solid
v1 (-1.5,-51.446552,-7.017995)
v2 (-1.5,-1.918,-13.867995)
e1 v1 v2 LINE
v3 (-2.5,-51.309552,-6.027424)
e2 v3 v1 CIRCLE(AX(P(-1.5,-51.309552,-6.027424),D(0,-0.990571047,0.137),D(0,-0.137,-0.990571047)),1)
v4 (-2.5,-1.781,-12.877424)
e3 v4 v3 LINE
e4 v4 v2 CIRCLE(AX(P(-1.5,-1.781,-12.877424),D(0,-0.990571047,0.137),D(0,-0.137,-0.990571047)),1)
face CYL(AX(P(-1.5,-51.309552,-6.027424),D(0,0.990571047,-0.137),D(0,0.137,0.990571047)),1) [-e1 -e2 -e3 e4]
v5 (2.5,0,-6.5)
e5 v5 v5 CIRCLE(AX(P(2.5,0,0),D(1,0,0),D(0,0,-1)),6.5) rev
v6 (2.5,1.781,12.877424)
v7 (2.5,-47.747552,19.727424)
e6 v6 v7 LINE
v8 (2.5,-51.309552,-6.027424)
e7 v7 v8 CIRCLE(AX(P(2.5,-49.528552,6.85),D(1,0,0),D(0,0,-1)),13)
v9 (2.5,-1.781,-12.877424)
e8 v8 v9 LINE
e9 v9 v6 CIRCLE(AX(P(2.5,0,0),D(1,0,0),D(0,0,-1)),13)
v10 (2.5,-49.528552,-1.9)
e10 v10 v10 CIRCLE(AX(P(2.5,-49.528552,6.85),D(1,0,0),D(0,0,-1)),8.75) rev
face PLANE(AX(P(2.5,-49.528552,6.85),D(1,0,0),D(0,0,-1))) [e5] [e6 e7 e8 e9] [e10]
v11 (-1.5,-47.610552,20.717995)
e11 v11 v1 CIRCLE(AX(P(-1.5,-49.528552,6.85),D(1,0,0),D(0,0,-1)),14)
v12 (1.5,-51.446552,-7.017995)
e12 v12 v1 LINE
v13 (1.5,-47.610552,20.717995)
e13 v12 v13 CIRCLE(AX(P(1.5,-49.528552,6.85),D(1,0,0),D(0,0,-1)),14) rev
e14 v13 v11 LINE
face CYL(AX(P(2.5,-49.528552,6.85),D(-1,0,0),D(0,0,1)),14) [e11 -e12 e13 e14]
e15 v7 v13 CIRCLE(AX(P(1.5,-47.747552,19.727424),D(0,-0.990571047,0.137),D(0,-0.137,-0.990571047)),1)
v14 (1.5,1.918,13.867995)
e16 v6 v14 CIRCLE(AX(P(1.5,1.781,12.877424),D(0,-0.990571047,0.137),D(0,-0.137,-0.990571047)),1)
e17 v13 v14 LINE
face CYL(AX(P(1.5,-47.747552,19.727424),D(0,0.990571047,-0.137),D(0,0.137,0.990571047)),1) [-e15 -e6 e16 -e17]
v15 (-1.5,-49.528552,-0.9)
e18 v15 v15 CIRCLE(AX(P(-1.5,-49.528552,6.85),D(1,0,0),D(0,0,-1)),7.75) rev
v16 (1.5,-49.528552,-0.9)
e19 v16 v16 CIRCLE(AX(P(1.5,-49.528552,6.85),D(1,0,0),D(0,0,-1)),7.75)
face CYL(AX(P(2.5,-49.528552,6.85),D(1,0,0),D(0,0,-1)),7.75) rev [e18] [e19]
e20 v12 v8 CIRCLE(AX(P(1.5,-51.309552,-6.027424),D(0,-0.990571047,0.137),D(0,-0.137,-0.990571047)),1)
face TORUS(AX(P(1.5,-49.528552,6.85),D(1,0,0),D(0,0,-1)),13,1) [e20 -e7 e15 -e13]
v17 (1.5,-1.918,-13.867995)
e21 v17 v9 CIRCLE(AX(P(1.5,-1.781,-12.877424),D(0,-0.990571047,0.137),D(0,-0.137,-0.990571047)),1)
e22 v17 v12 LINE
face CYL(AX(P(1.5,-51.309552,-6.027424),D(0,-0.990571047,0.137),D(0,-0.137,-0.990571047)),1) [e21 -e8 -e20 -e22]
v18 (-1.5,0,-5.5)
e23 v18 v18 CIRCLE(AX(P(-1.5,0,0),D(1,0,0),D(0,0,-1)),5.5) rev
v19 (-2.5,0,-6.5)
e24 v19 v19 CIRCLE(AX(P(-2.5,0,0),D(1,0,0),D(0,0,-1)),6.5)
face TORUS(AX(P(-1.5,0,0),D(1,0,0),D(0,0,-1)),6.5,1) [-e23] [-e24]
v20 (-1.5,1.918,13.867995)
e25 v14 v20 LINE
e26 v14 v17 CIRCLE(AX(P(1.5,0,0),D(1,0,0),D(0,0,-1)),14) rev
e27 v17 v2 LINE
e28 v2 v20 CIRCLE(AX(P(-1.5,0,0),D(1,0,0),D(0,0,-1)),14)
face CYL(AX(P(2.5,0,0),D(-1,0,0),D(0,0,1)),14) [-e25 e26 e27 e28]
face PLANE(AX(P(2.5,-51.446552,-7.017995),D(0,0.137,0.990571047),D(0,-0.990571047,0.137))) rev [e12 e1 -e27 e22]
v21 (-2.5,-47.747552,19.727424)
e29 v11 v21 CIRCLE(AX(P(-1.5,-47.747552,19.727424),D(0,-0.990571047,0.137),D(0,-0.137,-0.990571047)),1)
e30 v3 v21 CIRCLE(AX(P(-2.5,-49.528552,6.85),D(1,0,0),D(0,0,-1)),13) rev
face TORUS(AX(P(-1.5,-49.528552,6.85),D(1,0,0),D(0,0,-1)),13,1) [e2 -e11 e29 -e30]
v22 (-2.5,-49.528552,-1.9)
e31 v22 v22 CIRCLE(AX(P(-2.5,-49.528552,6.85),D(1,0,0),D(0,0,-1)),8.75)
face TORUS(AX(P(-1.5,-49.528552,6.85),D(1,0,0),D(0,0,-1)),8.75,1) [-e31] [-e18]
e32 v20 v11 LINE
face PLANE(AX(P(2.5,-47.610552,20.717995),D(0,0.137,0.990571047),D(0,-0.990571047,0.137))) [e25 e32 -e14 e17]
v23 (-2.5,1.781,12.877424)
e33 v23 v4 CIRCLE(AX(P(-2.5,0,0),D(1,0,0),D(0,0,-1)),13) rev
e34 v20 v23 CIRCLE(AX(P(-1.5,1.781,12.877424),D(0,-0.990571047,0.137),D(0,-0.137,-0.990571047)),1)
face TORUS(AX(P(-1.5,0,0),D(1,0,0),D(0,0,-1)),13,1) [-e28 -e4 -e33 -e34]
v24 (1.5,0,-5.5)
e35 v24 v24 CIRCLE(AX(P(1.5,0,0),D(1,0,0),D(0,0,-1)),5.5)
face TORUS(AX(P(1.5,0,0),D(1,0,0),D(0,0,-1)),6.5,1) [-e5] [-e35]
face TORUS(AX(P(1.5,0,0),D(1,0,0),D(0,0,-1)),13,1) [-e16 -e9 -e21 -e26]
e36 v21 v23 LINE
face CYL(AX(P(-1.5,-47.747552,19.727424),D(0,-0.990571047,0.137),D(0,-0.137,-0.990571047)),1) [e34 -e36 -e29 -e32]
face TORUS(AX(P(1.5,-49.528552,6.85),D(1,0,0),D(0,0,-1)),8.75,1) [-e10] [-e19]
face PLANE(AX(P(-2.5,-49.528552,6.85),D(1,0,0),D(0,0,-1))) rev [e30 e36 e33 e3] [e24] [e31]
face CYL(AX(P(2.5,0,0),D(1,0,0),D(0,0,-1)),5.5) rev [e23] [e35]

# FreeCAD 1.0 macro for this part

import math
import FreeCAD as App
import Part
import Sketcher
from FreeCAD import Vector


def edges_at(feature, points):
    """Names of the edges that pass closest to the given points."""
    edges = feature.Shape.Edges
    near = lambda p: min(range(len(edges)), key=lambda i: edges[i].distToShape(Part.Vertex(*p))[0])
    return sorted({f"Edge{near(p) + 1}" for p in points})

doc = App.newDocument("Part")
body = doc.addObject("PartDesign::Body", "Body")

# Sketch on YZ plane
sketch1 = doc.addObject("Sketcher::SketchObject", "Sketch")
body.addObject(sketch1)
sketch1.AttachmentSupport = (doc.YZ_Plane, [""])
sketch1.MapMode = "FlatFace"
sketch1.addGeometry([
    Part.LineSegment(Vector(1.918, 13.867995, 0), Vector(-47.610552, 20.717995, 0)),
    Part.ArcOfCircle(Part.Circle(Vector(-49.528552, 6.85, 0), Vector(0, 0, 1), 14), math.radians(82.125714), math.radians(262.125714)),
    Part.LineSegment(Vector(-51.446552, -7.017995, 0), Vector(-1.918, -13.867995, 0)),
    Part.ArcOfCircle(Part.Circle(Vector(0, 0, 0), Vector(0, 0, 1), 14), math.radians(-97.874286), math.radians(82.125714)),
], False)
sketch1.addConstraint([
    Sketcher.Constraint("Tangent", 0, 2, 1, 1),
    Sketcher.Constraint("Tangent", 1, 2, 2, 1),
    Sketcher.Constraint("Tangent", 2, 2, 3, 1),
    Sketcher.Constraint("Tangent", 3, 2, 0, 1),
    Sketcher.Constraint("Coincident", 3, 3, -1, 1),
    Sketcher.Constraint("Equal", 1, 3),
    Sketcher.Constraint("Radius", 1, 14.0),
    Sketcher.Constraint("Distance", 0, 50.0),
    Sketcher.Constraint("DistanceY", -1, 1, 1, 3, 6.85),
])
pad1 = doc.addObject("PartDesign::Pad", "Pad")
body.addObject(pad1)
pad1.Profile = sketch1
pad1.Length = 5
pad1.Midplane = True

# Sketch on YZ plane
sketch2 = doc.addObject("Sketcher::SketchObject", "Sketch001")
body.addObject(sketch2)
sketch2.AttachmentSupport = (doc.YZ_Plane, [""])
sketch2.MapMode = "FlatFace"
sketch2.AttachmentOffset = App.Placement(Vector(0, 0, 2.5), App.Rotation())
sketch2.addGeometry(Part.Circle(Vector(-49.528552, 6.85, 0), Vector(0, 0, 1), 7.75), False)
sketch2.addConstraint([
    Sketcher.Constraint("Diameter", 0, 15.5),
    Sketcher.Constraint("DistanceY", -1, 1, 0, 3, 6.85),
    Sketcher.Constraint("DistanceX", 0, 3, -1, 1, 49.528552),
])
doc.recompute()
hole = doc.addObject("PartDesign::Hole", "Hole")
body.addObject(hole)
hole.Profile = sketch2
hole.ThreadType = "None"
hole.Diameter = 15.5
hole.DepthType = "ThroughAll"

# Sketch on YZ plane
sketch3 = doc.addObject("Sketcher::SketchObject", "Sketch002")
body.addObject(sketch3)
sketch3.AttachmentSupport = (doc.YZ_Plane, [""])
sketch3.MapMode = "FlatFace"
sketch3.AttachmentOffset = App.Placement(Vector(0, 0, 2.5), App.Rotation())
sketch3.addGeometry(Part.Circle(Vector(0, 0, 0), Vector(0, 0, 1), 5.5), False)
sketch3.addConstraint([
    Sketcher.Constraint("Coincident", 0, 3, -1, 1),
    Sketcher.Constraint("Diameter", 0, 11.0),
])
doc.recompute()
hole2 = doc.addObject("PartDesign::Hole", "Hole001")
body.addObject(hole2)
hole2.Profile = sketch3
hole2.ThreadType = "None"
hole2.Diameter = 11
hole2.DepthType = "ThroughAll"
doc.recompute()

fillet = doc.addObject("PartDesign::Fillet", "Fillet")
body.addObject(fillet)
fillet.Base = (hole2, edges_at(hole2, [
    (2.5, 13.868, -1.918),
    (2.5, -22.846, 17.293),
    (2.5, -41.779, 6.85),
    (-2.5, -41.779, 6.85),
    (2.5, 5.5, 0),
    (-2.5, 5.5, 0),
    (2.5, -63.397, 8.768),
    (-2.5, -22.846, 17.293),
    (-2.5, 13.868, -1.918),
    (-2.5, -26.682, -10.443),
    (-2.5, -63.397, 8.768),
    (2.5, -26.682, -10.443),
]))
fillet.Radius = 1

doc.recompute()
